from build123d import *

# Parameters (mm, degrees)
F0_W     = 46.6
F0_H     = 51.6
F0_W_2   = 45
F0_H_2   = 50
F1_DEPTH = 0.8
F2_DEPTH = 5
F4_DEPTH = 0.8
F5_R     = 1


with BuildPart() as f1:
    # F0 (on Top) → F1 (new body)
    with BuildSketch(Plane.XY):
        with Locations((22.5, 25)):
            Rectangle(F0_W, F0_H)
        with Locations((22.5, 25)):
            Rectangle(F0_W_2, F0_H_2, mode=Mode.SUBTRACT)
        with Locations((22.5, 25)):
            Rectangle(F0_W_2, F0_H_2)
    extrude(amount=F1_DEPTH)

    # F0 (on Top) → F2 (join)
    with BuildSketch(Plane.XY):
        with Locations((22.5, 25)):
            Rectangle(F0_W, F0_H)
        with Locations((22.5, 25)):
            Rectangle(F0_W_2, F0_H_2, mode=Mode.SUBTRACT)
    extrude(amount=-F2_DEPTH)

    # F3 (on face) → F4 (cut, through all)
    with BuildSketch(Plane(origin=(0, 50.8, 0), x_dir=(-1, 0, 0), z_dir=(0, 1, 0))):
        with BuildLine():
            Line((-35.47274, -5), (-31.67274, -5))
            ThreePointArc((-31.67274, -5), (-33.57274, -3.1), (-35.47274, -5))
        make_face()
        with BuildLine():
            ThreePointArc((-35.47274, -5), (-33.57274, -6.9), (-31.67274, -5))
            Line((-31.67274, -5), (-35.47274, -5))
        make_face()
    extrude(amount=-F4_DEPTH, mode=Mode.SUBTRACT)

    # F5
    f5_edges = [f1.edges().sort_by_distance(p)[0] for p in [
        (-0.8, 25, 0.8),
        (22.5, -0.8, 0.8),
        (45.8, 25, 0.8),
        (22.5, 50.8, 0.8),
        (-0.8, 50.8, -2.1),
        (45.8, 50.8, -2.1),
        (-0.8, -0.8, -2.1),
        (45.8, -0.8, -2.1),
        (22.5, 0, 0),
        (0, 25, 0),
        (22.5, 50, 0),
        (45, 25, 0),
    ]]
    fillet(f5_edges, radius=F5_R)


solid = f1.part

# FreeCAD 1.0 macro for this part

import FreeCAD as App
import Part
import Sketcher

V = App.Vector
Q = App.Units.Quantity


def edges_at(feature, points):
    """Names of the edges that pass closest to the given points."""
    edges = feature.Shape.Edges
    near = lambda p: min(range(len(edges)), key=lambda i: edges[i].distToShape(Part.Vertex(*p))[0])
    return sorted({f"Edge{near(p) + 1}" for p in points})

doc = App.newDocument("Part")
params = doc.addObject("Spreadsheet::Sheet", "Params")
for row, (alias, value) in enumerate([
    ("sketch1_width", "46.6 mm"),
    ("sketch1_height", "51.6 mm"),
    ("pad1_length", "0.8 mm"),
    ("sketch2_width", "45 mm"),
    ("sketch2_height", "50 mm"),
    ("sketch2_width2", "46.6 mm"),
    ("sketch2_height2", "51.6 mm"),
    ("pad2_length", "5 mm"),
    ("sketch3_diameter", "3.8 mm"),
    ("pocket1_length", "0.8 mm"),
    ("fillet_radius", "1 mm"),
], start=1):
    params.set(f"A{row}", alias)
    params.set(f"B{row}", "=" + value)
    params.setAlias(f"B{row}", alias)

body = doc.addObject("PartDesign::Body", "Body")

sketch1 = body.newObject("Sketcher::SketchObject", "Sketch")
sketch1.AttachmentSupport = (doc.getObject("XY_Plane"), [""])
sketch1.MapMode = "FlatFace"
sketch1.addGeometry([
    Part.LineSegment(V(-1, 51, 0), V(-1, -1, 0)),
    Part.LineSegment(V(-1, -1, 0), V(46, -1, 0)),
    Part.LineSegment(V(46, -1, 0), V(46, 51, 0)),
    Part.LineSegment(V(46, 51, 0), V(-1, 51, 0)),
], False)
sketch1.addConstraint([
    Sketcher.Constraint("Coincident", 0, 2, 1, 1),
    Sketcher.Constraint("Coincident", 1, 2, 2, 1),
    Sketcher.Constraint("Coincident", 2, 2, 3, 1),
    Sketcher.Constraint("Coincident", 3, 2, 0, 1),
    Sketcher.Constraint("Vertical", 0),
    Sketcher.Constraint("Horizontal", 1),
    Sketcher.Constraint("Vertical", 2),
    Sketcher.Constraint("Horizontal", 3),
    Sketcher.Constraint("DistanceX", 1, 1, 1, 2, Q("46.6 mm")),
    Sketcher.Constraint("DistanceY", 0, 2, 0, 1, Q("51.6 mm")),
    Sketcher.Constraint("DistanceX", 0, 2, -1, 1, Q("0.8 mm")),
    Sketcher.Constraint("DistanceY", 0, 2, -1, 1, Q("0.8 mm")),
])
sketch1.setExpression("Constraints[8]", "Params.sketch1_width")
sketch1.setExpression("Constraints[9]", "Params.sketch1_height")
pad1 = body.newObject("PartDesign::Pad", "Pad")
pad1.Profile = sketch1
pad1.setExpression("Length", "Params.pad1_length")

sketch2 = body.newObject("Sketcher::SketchObject", "Sketch001")
sketch2.AttachmentSupport = (doc.getObject("XY_Plane"), [""])
sketch2.MapMode = "FlatFace"
sketch2.addGeometry([
    Part.LineSegment(V(-1, 51, 0), V(-1, -1, 0)),
    Part.LineSegment(V(-1, -1, 0), V(46, -1, 0)),
    Part.LineSegment(V(46, -1, 0), V(46, 51, 0)),
    Part.LineSegment(V(46, 51, 0), V(-1, 51, 0)),
    Part.LineSegment(V(45, 0, 0), V(0, 0, 0)),
    Part.LineSegment(V(0, 0, 0), V(0, 50, 0)),
    Part.LineSegment(V(0, 50, 0), V(45, 50, 0)),
    Part.LineSegment(V(45, 50, 0), V(45, 0, 0)),
], False)
sketch2.addConstraint([
    Sketcher.Constraint("Coincident", 0, 2, 1, 1),
    Sketcher.Constraint("Coincident", 1, 2, 2, 1),
    Sketcher.Constraint("Coincident", 2, 2, 3, 1),
    Sketcher.Constraint("Coincident", 3, 2, 0, 1),
    Sketcher.Constraint("Coincident", 4, 2, 5, 1),
    Sketcher.Constraint("Coincident", 5, 2, 6, 1),
    Sketcher.Constraint("Coincident", 6, 2, 7, 1),
    Sketcher.Constraint("Coincident", 7, 2, 4, 1),
    Sketcher.Constraint("Vertical", 0),
    Sketcher.Constraint("Horizontal", 1),
    Sketcher.Constraint("Vertical", 2),
    Sketcher.Constraint("Horizontal", 3),
    Sketcher.Constraint("Horizontal", 4),
    Sketcher.Constraint("Vertical", 5),
    Sketcher.Constraint("Horizontal", 6),
    Sketcher.Constraint("Vertical", 7),
    Sketcher.Constraint("Coincident", 4, 2, -1, 1),
    Sketcher.Constraint("DistanceX", 4, 2, 4, 1, Q("45 mm")),
    Sketcher.Constraint("DistanceY", 5, 1, 5, 2, Q("50 mm")),
    Sketcher.Constraint("DistanceX", 1, 1, 1, 2, Q("46.6 mm")),
    Sketcher.Constraint("DistanceY", 0, 2, 0, 1, Q("51.6 mm")),
    Sketcher.Constraint("DistanceX", 0, 2, -1, 1, Q("0.8 mm")),
    Sketcher.Constraint("DistanceY", 0, 2, -1, 1, Q("0.8 mm")),
])
sketch2.setExpression("Constraints[17]", "Params.sketch2_width")
sketch2.setExpression("Constraints[18]", "Params.sketch2_height")
sketch2.setExpression("Constraints[19]", "Params.sketch2_width2")
sketch2.setExpression("Constraints[20]", "Params.sketch2_height2")
pad2 = body.newObject("PartDesign::Pad", "Pad001")
pad2.Profile = sketch2
pad2.setExpression("Length", "Params.pad2_length")
pad2.Reversed = True

sketch3 = body.newObject("Sketcher::SketchObject", "Sketch002")
sketch3.AttachmentSupport = (doc.getObject("XZ_Plane"), [""])
sketch3.MapMode = "FlatFace"
sketch3.AttachmentOffset = App.Placement(V(0, 0, -50.8), App.Rotation())
sketch3.addGeometry(Part.Circle(V(33.6, -5, 0), V(0, 0, 1), 1.9), False)
sketch3.addConstraint([
    Sketcher.Constraint("Diameter", 0, Q("3.8 mm")),
    Sketcher.Constraint("DistanceY", 0, 3, -1, 1, Q("5 mm")),
    Sketcher.Constraint("DistanceX", -1, 1, 0, 3, Q("33.57274 mm")),
])
sketch3.setExpression("Constraints[0]", "Params.sketch3_diameter")
pocket1 = body.newObject("PartDesign::Pocket", "Pocket")
pocket1.Profile = sketch3
pocket1.setExpression("Length", "Params.pocket1_length")
pocket1.Reversed = True
doc.recompute()

fillet = body.newObject("PartDesign::Fillet", "Fillet")
fillet.Base = (pocket1, edges_at(pocket1, [
    (-0.8, 25, 0.8),
    (22.5, -0.8, 0.8),
    (45.8, 25, 0.8),
    (22.5, 50.8, 0.8),
    (-0.8, 50.8, -2.1),
    (45.8, 50.8, -2.1),
    (-0.8, -0.8, -2.1),
    (45.8, -0.8, -2.1),
    (22.5, 0, 0),
    (0, 25, 0),
    (22.5, 50, 0),
    (45, 25, 0),
]))
fillet.setExpression("Radius", "Params.fillet_radius")

doc.recompute()
